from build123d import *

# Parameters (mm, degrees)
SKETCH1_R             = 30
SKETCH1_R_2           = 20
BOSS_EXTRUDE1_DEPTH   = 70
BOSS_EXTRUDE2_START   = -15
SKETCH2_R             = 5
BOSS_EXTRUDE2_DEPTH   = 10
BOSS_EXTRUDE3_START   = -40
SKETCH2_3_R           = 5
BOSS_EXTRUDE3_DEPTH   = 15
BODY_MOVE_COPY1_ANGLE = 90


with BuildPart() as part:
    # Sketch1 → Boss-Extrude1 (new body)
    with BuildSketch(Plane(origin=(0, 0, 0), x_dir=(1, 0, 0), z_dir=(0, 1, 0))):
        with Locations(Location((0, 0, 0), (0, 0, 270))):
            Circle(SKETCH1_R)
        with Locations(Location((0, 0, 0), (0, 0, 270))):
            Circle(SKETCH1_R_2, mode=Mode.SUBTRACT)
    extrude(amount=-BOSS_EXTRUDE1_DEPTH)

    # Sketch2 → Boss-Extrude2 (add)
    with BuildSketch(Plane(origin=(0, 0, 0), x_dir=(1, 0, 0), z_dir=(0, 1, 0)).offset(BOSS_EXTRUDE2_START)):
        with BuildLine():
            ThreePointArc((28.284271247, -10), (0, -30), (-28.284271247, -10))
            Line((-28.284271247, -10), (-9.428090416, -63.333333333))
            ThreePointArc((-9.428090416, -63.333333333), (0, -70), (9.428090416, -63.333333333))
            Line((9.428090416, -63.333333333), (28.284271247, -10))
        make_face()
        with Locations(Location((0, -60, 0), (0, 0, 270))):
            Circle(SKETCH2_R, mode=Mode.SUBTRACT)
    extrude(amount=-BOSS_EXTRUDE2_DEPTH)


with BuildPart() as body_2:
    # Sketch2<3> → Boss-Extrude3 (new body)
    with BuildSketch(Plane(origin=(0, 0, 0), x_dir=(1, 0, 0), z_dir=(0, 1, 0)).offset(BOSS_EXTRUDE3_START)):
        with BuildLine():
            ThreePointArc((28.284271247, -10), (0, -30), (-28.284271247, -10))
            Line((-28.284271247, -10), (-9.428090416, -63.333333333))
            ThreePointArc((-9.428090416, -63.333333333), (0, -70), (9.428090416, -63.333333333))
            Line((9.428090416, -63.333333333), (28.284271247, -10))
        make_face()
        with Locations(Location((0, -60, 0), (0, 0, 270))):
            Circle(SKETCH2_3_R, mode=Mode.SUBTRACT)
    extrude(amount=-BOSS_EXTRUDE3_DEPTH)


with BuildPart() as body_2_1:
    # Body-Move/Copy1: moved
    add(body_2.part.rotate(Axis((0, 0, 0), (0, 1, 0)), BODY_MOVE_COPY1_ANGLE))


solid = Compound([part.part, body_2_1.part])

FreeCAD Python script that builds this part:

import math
import FreeCAD as App
import Part
import Sketcher

doc = App.newDocument("Part")
params = doc.addObject("Spreadsheet::Sheet", "Params")
for row, (alias, value) in enumerate([
    ("sketch1_diameter", "60 mm"),
    ("sketch1_diameter2", "40 mm"),
    ("pad1_length", "70 mm"),
    ("sketch2_diameter", "10 mm"),
    ("sketch2_radius", "30 mm"),
    ("sketch2_radius2", "10 mm"),
    ("pad2_length", "10 mm"),
    ("sketch3_diameter", "10 mm"),
    ("sketch3_radius", "30 mm"),
    ("sketch3_radius2", "10 mm"),
    ("pad3_length", "15 mm"),
], start=1):
    params.set(f"A{row}", alias)
    params.set(f"B{row}", "=" + value)
    params.setAlias(f"B{row}", alias)

body = doc.addObject("PartDesign::Body", "Body")

sketch1 = body.newObject("Sketcher::SketchObject", "Sketch")
sketch1.AttachmentSupport = (doc.getObject("XZ_Plane"), [""])
sketch1.MapMode = "FlatFace"
sketch1.addGeometry([
    Part.Circle(App.Vector(0, 0, 0), App.Vector(0, 0, 1), 30),
    Part.Circle(App.Vector(0, 0, 0), App.Vector(0, 0, 1), 20),
], False)
sketch1.addConstraint([
    Sketcher.Constraint("Coincident", 0, 3, -1, 1),
    Sketcher.Constraint("Coincident", 1, 3, -1, 1),
    Sketcher.Constraint("Diameter", 0, 60.0),
    Sketcher.Constraint("Diameter", 1, 40.0),
])
sketch1.setExpression("Constraints[2]", "Params.sketch1_diameter")
sketch1.setExpression("Constraints[3]", "Params.sketch1_diameter2")
pad1 = body.newObject("PartDesign::Pad", "Pad")
pad1.Profile = sketch1
pad1.setExpression("Length", "Params.pad1_length")

sketch2 = body.newObject("Sketcher::SketchObject", "Sketch001")
sketch2.AttachmentSupport = (doc.getObject("XZ_Plane"), [""])
sketch2.MapMode = "FlatFace"
sketch2.AttachmentOffset = App.Placement(App.Vector(0, 0, 15), App.Rotation())
sketch2.addGeometry([
    Part.ArcOfCircle(Part.Circle(App.Vector(0, 0, 0), App.Vector(0, 0, 1), 30), math.radians(19.471221), math.radians(160.528779)),
    Part.LineSegment(App.Vector(-28.284271, 10, 0), App.Vector(-9.42809, 63.333333, 0)),
    Part.ArcOfCircle(Part.Circle(App.Vector(0, 60, 0), App.Vector(0, 0, 1), 10), math.radians(19.471221), math.radians(160.528779)),
    Part.LineSegment(App.Vector(9.42809, 63.333333, 0), App.Vector(28.284271, 10, 0)),
    Part.Circle(App.Vector(0, 60, 0), App.Vector(0, 0, 1), 5),
], False)
sketch2.addConstraint([
    Sketcher.Constraint("Tangent", 0, 2, 1, 1),
    Sketcher.Constraint("Tangent", 1, 2, 2, 2),
    Sketcher.Constraint("Tangent", 2, 1, 3, 1),
    Sketcher.Constraint("Tangent", 3, 2, 0, 1),
    Sketcher.Constraint("Coincident", 0, 3, -1, 1),
    Sketcher.Constraint("Coincident", 4, 3, 2, 3),
    Sketcher.Constraint("PointOnObject", 2, 3, -2),
    Sketcher.Constraint("Diameter", 4, 10.0),
    Sketcher.Constraint("Radius", 0, 30.0),
    Sketcher.Constraint("Radius", 2, 10.0),
    Sketcher.Constraint("DistanceY", -1, 1, 2, 3, 60.0),
])
sketch2.setExpression("Constraints[7]", "Params.sketch2_diameter")
sketch2.setExpression("Constraints[8]", "Params.sketch2_radius")
sketch2.setExpression("Constraints[9]", "Params.sketch2_radius2")
pad2 = body.newObject("PartDesign::Pad", "Pad001")
pad2.Profile = sketch2
pad2.setExpression("Length", "Params.pad2_length")
body2 = doc.addObject("PartDesign::Body", "Body001")

sketch3 = body2.newObject("Sketcher::SketchObject", "Sketch002")
sketch3.AttachmentSupport = (doc.getObject("XZ_Plane001"), [""])
sketch3.MapMode = "FlatFace"
sketch3.AttachmentOffset = App.Placement(App.Vector(0, 0, 40), App.Rotation())
sketch3.addGeometry([
    Part.ArcOfCircle(Part.Circle(App.Vector(0, 0, 0), App.Vector(0, 0, 1), 30), math.radians(19.471221), math.radians(160.528779)),
    Part.LineSegment(App.Vector(-28.284271, 10, 0), App.Vector(-9.42809, 63.333333, 0)),
    Part.ArcOfCircle(Part.Circle(App.Vector(0, 60, 0), App.Vector(0, 0, 1), 10), math.radians(19.471221), math.radians(160.528779)),
    Part.LineSegment(App.Vector(9.42809, 63.333333, 0), App.Vector(28.284271, 10, 0)),
    Part.Circle(App.Vector(0, 60, 0), App.Vector(0, 0, 1), 5),
], False)
sketch3.addConstraint([
    Sketcher.Constraint("Tangent", 0, 2, 1, 1),
    Sketcher.Constraint("Tangent", 1, 2, 2, 2),
    Sketcher.Constraint("Tangent", 2, 1, 3, 1),
    Sketcher.Constraint("Tangent", 3, 2, 0, 1),
    Sketcher.Constraint("Coincident", 0, 3, -1, 1),
    Sketcher.Constraint("Coincident", 4, 3, 2, 3),
    Sketcher.Constraint("PointOnObject", 2, 3, -2),
    Sketcher.Constraint("Diameter", 4, 10.0),
    Sketcher.Constraint("Radius", 0, 30.0),
    Sketcher.Constraint("Radius", 2, 10.0),
    Sketcher.Constraint("DistanceY", -1, 1, 2, 3, 60.0),
])
sketch3.setExpression("Constraints[7]", "Params.sketch3_diameter")
sketch3.setExpression("Constraints[8]", "Params.sketch3_radius")
sketch3.setExpression("Constraints[9]", "Params.sketch3_radius2")
pad3 = body2.newObject("PartDesign::Pad", "Pad002")
pad3.Profile = sketch3
pad3.setExpression("Length", "Params.pad3_length")
body3 = doc.addObject("PartDesign::Body", "Body002")
doc.recompute()

body2.Placement = App.Placement(App.Vector(0, 0, 0), App.Rotation(App.Vector(0, 1, 0), 90))
boolean = body3.newObject("PartDesign::Boolean", "Boolean")
boolean.Type = "Fuse"
boolean.addObjects([body2])

doc.recompute()
